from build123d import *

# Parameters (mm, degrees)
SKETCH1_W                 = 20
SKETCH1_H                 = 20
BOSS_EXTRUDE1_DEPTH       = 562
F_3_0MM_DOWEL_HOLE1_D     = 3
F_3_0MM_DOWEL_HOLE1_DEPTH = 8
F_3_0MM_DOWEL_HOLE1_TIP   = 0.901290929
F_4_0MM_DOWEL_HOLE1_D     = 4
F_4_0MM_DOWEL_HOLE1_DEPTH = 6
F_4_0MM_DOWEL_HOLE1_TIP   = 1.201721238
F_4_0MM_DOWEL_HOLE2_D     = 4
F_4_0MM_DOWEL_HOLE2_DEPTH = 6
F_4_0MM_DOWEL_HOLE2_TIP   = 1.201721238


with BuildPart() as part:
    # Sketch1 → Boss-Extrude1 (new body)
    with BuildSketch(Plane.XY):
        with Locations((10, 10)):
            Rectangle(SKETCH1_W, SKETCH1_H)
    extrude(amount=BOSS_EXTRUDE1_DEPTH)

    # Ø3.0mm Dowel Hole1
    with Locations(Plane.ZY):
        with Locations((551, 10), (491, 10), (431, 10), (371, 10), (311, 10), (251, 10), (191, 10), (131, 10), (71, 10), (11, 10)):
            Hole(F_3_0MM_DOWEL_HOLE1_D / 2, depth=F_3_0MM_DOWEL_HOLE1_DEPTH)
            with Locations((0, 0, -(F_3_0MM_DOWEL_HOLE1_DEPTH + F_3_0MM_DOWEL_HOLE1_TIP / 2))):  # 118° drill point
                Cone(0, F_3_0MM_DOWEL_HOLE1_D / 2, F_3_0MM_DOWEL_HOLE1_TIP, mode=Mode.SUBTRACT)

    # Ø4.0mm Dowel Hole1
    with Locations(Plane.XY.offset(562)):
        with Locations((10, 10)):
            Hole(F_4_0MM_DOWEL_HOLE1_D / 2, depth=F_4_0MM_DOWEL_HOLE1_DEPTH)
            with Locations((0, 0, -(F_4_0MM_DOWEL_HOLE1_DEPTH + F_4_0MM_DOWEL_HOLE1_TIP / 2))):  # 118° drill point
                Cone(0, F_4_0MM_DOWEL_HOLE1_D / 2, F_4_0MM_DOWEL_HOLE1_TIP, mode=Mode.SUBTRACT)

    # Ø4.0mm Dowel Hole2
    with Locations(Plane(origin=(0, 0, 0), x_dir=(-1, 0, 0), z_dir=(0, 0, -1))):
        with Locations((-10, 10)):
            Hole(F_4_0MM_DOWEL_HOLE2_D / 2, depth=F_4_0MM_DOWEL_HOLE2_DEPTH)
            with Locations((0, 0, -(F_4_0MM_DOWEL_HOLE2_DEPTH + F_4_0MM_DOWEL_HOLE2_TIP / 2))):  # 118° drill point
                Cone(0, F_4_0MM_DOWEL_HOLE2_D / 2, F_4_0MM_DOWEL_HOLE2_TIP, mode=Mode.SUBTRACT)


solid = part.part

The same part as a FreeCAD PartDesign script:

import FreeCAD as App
import Part
import Sketcher

V = App.Vector
Q = App.Units.Quantity

doc = App.newDocument("Part")
body = doc.addObject("PartDesign::Body", "Body")

# Sketch on XY plane
sketch1 = body.newObject("Sketcher::SketchObject", "Sketch")
sketch1.AttachmentSupport = (doc.getObject("XY_Plane"), [""])
sketch1.MapMode = "FlatFace"
sketch1.addGeometry([
    Part.LineSegment(V(0, 20, 0), V(0, 0, 0)),
    Part.LineSegment(V(0, 0, 0), V(20, 0, 0)),
    Part.LineSegment(V(20, 0, 0), V(20, 20, 0)),
    Part.LineSegment(V(20, 20, 0), V(0, 20, 0)),
], False)
sketch1.addConstraint([
    Sketcher.Constraint("Coincident", 0, 2, 1, 1),
    Sketcher.Constraint("Coincident", 1, 2, 2, 1),
    Sketcher.Constraint("Coincident", 2, 2, 3, 1),
    Sketcher.Constraint("Coincident", 3, 2, 0, 1),
    Sketcher.Constraint("Vertical", 0),
    Sketcher.Constraint("Horizontal", 1),
    Sketcher.Constraint("Vertical", 2),
    Sketcher.Constraint("Horizontal", 3),
    Sketcher.Constraint("Coincident", 0, 2, -1, 1),
    Sketcher.Constraint("Equal", 3, 0),
    Sketcher.Constraint("DistanceX", 1, 1, 1, 2, Q("20 mm")),
])
pad1 = body.newObject("PartDesign::Pad", "Pad")
pad1.Profile = sketch1
pad1.Length = 562

# Sketch on YZ plane
sketch2 = body.newObject("Sketcher::SketchObject", "Sketch001")
sketch2.AttachmentSupport = (doc.getObject("YZ_Plane"), [""])
sketch2.MapMode = "FlatFace"
sketch2.addGeometry([
    Part.Circle(V(10, 551, 0), V(0, 0, 1), 1.5),  # 0
    Part.Circle(V(10, 491, 0), V(0, 0, 1), 1.5),  # 1
    Part.Circle(V(10, 431, 0), V(0, 0, 1), 1.5),  # 2
    Part.Circle(V(10, 371, 0), V(0, 0, 1), 1.5),  # 3
    Part.Circle(V(10, 311, 0), V(0, 0, 1), 1.5),  # 4
    Part.Circle(V(10, 251, 0), V(0, 0, 1), 1.5),  # 5
    Part.Circle(V(10, 191, 0), V(0, 0, 1), 1.5),  # 6
    Part.Circle(V(10, 131, 0), V(0, 0, 1), 1.5),  # 7
    Part.Circle(V(10, 71, 0), V(0, 0, 1), 1.5),  # 8
    Part.Circle(V(10, 11, 0), V(0, 0, 1), 1.5),  # 9
], False)
sketch2.addConstraint([
    Sketcher.Constraint("Equal", 0, 1),
    Sketcher.Constraint("Equal", 1, 2),
    Sketcher.Constraint("Equal", 2, 3),
    Sketcher.Constraint("Equal", 3, 4),
    Sketcher.Constraint("Equal", 4, 5),
    Sketcher.Constraint("Equal", 5, 6),
    Sketcher.Constraint("Equal", 6, 7),
    Sketcher.Constraint("Equal", 7, 8),
    Sketcher.Constraint("Equal", 8, 9),
    Sketcher.Constraint("Vertical", 0, 3, 1, 3),
    Sketcher.Constraint("Vertical", 1, 3, 2, 3),
    Sketcher.Constraint("Vertical", 2, 3, 3, 3),
    Sketcher.Constraint("Vertical", 3, 3, 4, 3),
    Sketcher.Constraint("Vertical", 4, 3, 5, 3),
    Sketcher.Constraint("Vertical", 5, 3, 6, 3),
    Sketcher.Constraint("Vertical", 6, 3, 7, 3),
    Sketcher.Constraint("Vertical", 7, 3, 8, 3),
    Sketcher.Constraint("Vertical", 8, 3, 9, 3),
    Sketcher.Constraint("Diameter", 0, Q("3 mm")),
    Sketcher.Constraint("DistanceX", -1, 1, 0, 3, Q("10 mm")),
    Sketcher.Constraint("DistanceY", -1, 1, 0, 3, Q("551 mm")),
    Sketcher.Constraint("DistanceY", -1, 1, 1, 3, Q("491 mm")),
    Sketcher.Constraint("DistanceY", -1, 1, 2, 3, Q("431 mm")),
    Sketcher.Constraint("DistanceY", -1, 1, 3, 3, Q("371 mm")),
    Sketcher.Constraint("DistanceY", -1, 1, 4, 3, Q("311 mm")),
    Sketcher.Constraint("DistanceY", -1, 1, 5, 3, Q("251 mm")),
    Sketcher.Constraint("DistanceY", -1, 1, 6, 3, Q("191 mm")),
    Sketcher.Constraint("DistanceY", -1, 1, 7, 3, Q("131 mm")),
    Sketcher.Constraint("DistanceY", -1, 1, 8, 3, Q("71 mm")),
    Sketcher.Constraint("DistanceY", -1, 1, 9, 3, Q("11 mm")),
])
doc.recompute()
hole = body.newObject("PartDesign::Hole", "Hole")
hole.Profile = sketch2
hole.ThreadType = "None"
hole.Diameter = 3
hole.DepthType = "Dimension"
hole.Depth = 8
hole.DrillPoint = "Angled"
hole.DrillPointAngle = 118
hole.Reversed = True

# Sketch on XY plane
sketch3 = body.newObject("Sketcher::SketchObject", "Sketch002")
sketch3.AttachmentSupport = (doc.getObject("XY_Plane"), [""])
sketch3.MapMode = "FlatFace"
sketch3.AttachmentOffset = App.Placement(V(0, 0, 562), App.Rotation())
sketch3.addGeometry(Part.Circle(V(10, 10, 0), V(0, 0, 1), 2), False)
sketch3.addConstraint([
    Sketcher.Constraint("Diameter", 0, Q("4 mm")),
    Sketcher.Constraint("DistanceX", -1, 1, 0, 3, Q("10 mm")),
    Sketcher.Constraint("DistanceY", -1, 1, 0, 3, Q("10 mm")),
])
doc.recompute()
hole2 = body.newObject("PartDesign::Hole", "Hole001")
hole2.Profile = sketch3
hole2.ThreadType = "None"
hole2.Diameter = 4
hole2.DepthType = "Dimension"
hole2.Depth = 6
hole2.DrillPoint = "Angled"
hole2.DrillPointAngle = 118

# Sketch on XY plane
sketch4 = body.newObject("Sketcher::SketchObject", "Sketch003")
sketch4.AttachmentSupport = (doc.getObject("XY_Plane"), [""])
sketch4.MapMode = "FlatFace"
sketch4.addGeometry(Part.Circle(V(10, 10, 0), V(0, 0, 1), 2), False)
sketch4.addConstraint([
    Sketcher.Constraint("Diameter", 0, Q("4 mm")),
    Sketcher.Constraint("DistanceX", -1, 1, 0, 3, Q("10 mm")),
    Sketcher.Constraint("DistanceY", -1, 1, 0, 3, Q("10 mm")),
])
doc.recompute()
hole3 = body.newObject("PartDesign::Hole", "Hole002")
hole3.Profile = sketch4
hole3.ThreadType = "None"
hole3.Diameter = 4
hole3.DepthType = "Dimension"
hole3.Depth = 6
hole3.DrillPoint = "Angled"
hole3.DrillPointAngle = 118
hole3.Reversed = True

doc.recompute()
